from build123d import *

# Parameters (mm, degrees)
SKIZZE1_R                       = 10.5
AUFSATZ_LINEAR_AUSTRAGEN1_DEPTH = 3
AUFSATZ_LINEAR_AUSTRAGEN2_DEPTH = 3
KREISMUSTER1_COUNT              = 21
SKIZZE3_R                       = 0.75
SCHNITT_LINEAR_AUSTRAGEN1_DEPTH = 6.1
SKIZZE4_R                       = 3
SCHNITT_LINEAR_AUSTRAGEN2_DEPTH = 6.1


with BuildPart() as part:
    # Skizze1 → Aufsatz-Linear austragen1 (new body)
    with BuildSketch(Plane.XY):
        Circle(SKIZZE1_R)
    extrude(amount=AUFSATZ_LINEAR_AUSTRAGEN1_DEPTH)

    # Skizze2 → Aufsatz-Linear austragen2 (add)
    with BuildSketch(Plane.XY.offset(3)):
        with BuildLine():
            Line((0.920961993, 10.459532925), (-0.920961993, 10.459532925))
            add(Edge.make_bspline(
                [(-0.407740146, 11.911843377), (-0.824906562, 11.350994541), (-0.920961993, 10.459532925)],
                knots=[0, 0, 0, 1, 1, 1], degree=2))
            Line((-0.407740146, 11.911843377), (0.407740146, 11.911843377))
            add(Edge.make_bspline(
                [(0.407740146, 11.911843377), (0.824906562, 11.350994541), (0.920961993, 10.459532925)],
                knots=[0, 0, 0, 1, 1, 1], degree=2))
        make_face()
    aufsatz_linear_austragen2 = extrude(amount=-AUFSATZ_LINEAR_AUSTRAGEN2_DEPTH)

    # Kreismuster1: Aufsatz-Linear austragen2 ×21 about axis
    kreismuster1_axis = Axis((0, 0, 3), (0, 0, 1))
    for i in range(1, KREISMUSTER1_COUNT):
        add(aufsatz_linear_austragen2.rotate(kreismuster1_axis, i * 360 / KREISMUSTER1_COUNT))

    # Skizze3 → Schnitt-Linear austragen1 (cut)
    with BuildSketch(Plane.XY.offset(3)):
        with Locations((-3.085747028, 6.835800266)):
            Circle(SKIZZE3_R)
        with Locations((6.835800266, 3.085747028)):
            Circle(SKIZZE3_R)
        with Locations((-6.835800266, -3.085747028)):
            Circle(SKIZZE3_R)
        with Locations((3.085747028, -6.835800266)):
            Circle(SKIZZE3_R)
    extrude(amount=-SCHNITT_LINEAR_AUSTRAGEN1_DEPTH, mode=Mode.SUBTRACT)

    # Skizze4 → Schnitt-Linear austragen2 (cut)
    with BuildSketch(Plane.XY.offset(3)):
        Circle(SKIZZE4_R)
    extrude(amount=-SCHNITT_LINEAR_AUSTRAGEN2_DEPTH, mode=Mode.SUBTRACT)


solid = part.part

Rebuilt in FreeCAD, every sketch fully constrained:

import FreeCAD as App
import Part
import Sketcher

doc = App.newDocument("Part")
params = doc.addObject("Spreadsheet::Sheet", "Params")
for row, (alias, value) in enumerate([
    ("sketch1_diameter", "21 mm"),
    ("pad1_length", "3 mm"),
    ("pad2_length", "3 mm"),
    ("sketch3_diameter", "1.5 mm"),
    ("pocket1_length", "6.1 mm"),
    ("sketch4_diameter", "6 mm"),
    ("pocket2_length", "6.1 mm"),
], start=1):
    params.set(f"A{row}", alias)
    params.set(f"B{row}", "=" + value)
    params.setAlias(f"B{row}", alias)

body = doc.addObject("PartDesign::Body", "Body")

# Sketch on XY plane
sketch1 = doc.addObject("Sketcher::SketchObject", "Sketch")
body.addObject(sketch1)
sketch1.AttachmentSupport = (doc.XY_Plane, [""])
sketch1.MapMode = "FlatFace"
sketch1.addGeometry(Part.Circle(App.Vector(0, 0, 0), App.Vector(0, 0, 1), 10), False)
sketch1.addConstraint(Sketcher.Constraint("Coincident", 0, 3, -1, 1))
sketch1.addConstraint(Sketcher.Constraint("Diameter", 0, 21.0))
sketch1.setExpression("Constraints[1]", "Params.sketch1_diameter")
pad1 = doc.addObject("PartDesign::Pad", "Pad")
body.addObject(pad1)
pad1.Profile = sketch1
pad1.setExpression("Length", "Params.pad1_length")

# Sketch on XY plane
sketch2 = doc.addObject("Sketcher::SketchObject", "Sketch001")
body.addObject(sketch2)
sketch2.AttachmentSupport = (doc.XY_Plane, [""])
sketch2.MapMode = "FlatFace"
sketch2.AttachmentOffset = App.Placement(App.Vector(0, 0, 3), App.Rotation())
sketch2.addGeometry(Part.LineSegment(App.Vector(-0.920962, 10.459533, 0), App.Vector(0.920962, 10.459533, 0)), False)
sketch2.addGeometry(Part.BSplineCurve([App.Vector(0.40774, 11.911843, 0), App.Vector(0.824907, 11.350995, 0), App.Vector(0.920962, 10.459533, 0)], [3, 3], [0, 1], False, 2, [1, 1, 1], False), False)
sketch2.addGeometry(Part.LineSegment(App.Vector(0.40774, 11.911843, 0), App.Vector(-0.40774, 11.911843, 0)), False)
sketch2.addGeometry(Part.BSplineCurve([App.Vector(-0.40774, 11.911843, 0), App.Vector(-0.824907, 11.350995, 0), App.Vector(-0.920962, 10.459533, 0)], [3, 3], [0, 1], False, 2, [1, 1, 1], False), False)
sketch2.addConstraint(Sketcher.Constraint("Block", 1))
sketch2.addConstraint(Sketcher.Constraint("Block", 3))
sketch2.addConstraint(Sketcher.Constraint("Coincident", 0, 2, 1, 2))
sketch2.addConstraint(Sketcher.Constraint("Coincident", 1, 1, 2, 1))
sketch2.addConstraint(Sketcher.Constraint("Coincident", 2, 2, 3, 1))
sketch2.addConstraint(Sketcher.Constraint("Coincident", 3, 2, 0, 1))
pad2 = doc.addObject("PartDesign::Pad", "Pad001")
body.addObject(pad2)
pad2.Profile = sketch2
pad2.setExpression("Length", "Params.pad2_length")
pad2.Reversed = True
doc.recompute()

polarpattern = doc.addObject("PartDesign::PolarPattern", "PolarPattern")
body.addObject(polarpattern)
polarpattern.Originals = [pad2]
polarpattern.Axis = (doc.Z_Axis, [""])
polarpattern.Angle = 360
polarpattern.Occurrences = 21
body.Tip = polarpattern

# Sketch on XY plane
sketch3 = doc.addObject("Sketcher::SketchObject", "Sketch002")
body.addObject(sketch3)
sketch3.AttachmentSupport = (doc.XY_Plane, [""])
sketch3.MapMode = "FlatFace"
sketch3.AttachmentOffset = App.Placement(App.Vector(0, 0, 3), App.Rotation())
sketch3.addGeometry(Part.Circle(App.Vector(-3.1, 6.8, 0), App.Vector(0, 0, 1), 0.8), False)
sketch3.addGeometry(Part.Circle(App.Vector(6.8, 3.1, 0), App.Vector(0, 0, 1), 0.8), False)
sketch3.addGeometry(Part.Circle(App.Vector(-6.8, -3.1, 0), App.Vector(0, 0, 1), 0.8), False)
sketch3.addGeometry(Part.Circle(App.Vector(3.1, -6.8, 0), App.Vector(0, 0, 1), 0.8), False)
sketch3.addConstraint(Sketcher.Constraint("Equal", 0, 1))
sketch3.addConstraint(Sketcher.Constraint("Equal", 1, 2))
sketch3.addConstraint(Sketcher.Constraint("Equal", 2, 3))
sketch3.addConstraint(Sketcher.Constraint("Symmetric", 1, 3, 2, 3, -1, 1))
sketch3.addConstraint(Sketcher.Constraint("Symmetric", 0, 3, 3, 3, -1, 1))
sketch3.addConstraint(Sketcher.Constraint("Diameter", 0, 1.5))
sketch3.addConstraint(Sketcher.Constraint("DistanceY", -1, 1, 0, 3, 6.8358))
sketch3.addConstraint(Sketcher.Constraint("DistanceX", -1, 1, 1, 3, 6.8358))
sketch3.addConstraint(Sketcher.Constraint("DistanceX", 0, 3, -1, 1, 3.085747))
sketch3.addConstraint(Sketcher.Constraint("DistanceY", -1, 1, 1, 3, 3.085747))
sketch3.setExpression("Constraints[5]", "Params.sketch3_diameter")
pocket1 = doc.addObject("PartDesign::Pocket", "Pocket")
body.addObject(pocket1)
pocket1.Profile = sketch3
pocket1.setExpression("Length", "Params.pocket1_length")

# Sketch on XY plane
sketch4 = doc.addObject("Sketcher::SketchObject", "Sketch003")
body.addObject(sketch4)
sketch4.AttachmentSupport = (doc.XY_Plane, [""])
sketch4.MapMode = "FlatFace"
sketch4.AttachmentOffset = App.Placement(App.Vector(0, 0, 3), App.Rotation())
sketch4.addGeometry(Part.Circle(App.Vector(0, 0, 0), App.Vector(0, 0, 1), 3), False)
sketch4.addConstraint(Sketcher.Constraint("Coincident", 0, 3, -1, 1))
sketch4.addConstraint(Sketcher.Constraint("Diameter", 0, 6.0))
sketch4.setExpression("Constraints[1]", "Params.sketch4_diameter")
pocket2 = doc.addObject("PartDesign::Pocket", "Pocket001")
body.addObject(pocket2)
pocket2.Profile = sketch4
pocket2.setExpression("Length", "Params.pocket2_length")

doc.recompute()
